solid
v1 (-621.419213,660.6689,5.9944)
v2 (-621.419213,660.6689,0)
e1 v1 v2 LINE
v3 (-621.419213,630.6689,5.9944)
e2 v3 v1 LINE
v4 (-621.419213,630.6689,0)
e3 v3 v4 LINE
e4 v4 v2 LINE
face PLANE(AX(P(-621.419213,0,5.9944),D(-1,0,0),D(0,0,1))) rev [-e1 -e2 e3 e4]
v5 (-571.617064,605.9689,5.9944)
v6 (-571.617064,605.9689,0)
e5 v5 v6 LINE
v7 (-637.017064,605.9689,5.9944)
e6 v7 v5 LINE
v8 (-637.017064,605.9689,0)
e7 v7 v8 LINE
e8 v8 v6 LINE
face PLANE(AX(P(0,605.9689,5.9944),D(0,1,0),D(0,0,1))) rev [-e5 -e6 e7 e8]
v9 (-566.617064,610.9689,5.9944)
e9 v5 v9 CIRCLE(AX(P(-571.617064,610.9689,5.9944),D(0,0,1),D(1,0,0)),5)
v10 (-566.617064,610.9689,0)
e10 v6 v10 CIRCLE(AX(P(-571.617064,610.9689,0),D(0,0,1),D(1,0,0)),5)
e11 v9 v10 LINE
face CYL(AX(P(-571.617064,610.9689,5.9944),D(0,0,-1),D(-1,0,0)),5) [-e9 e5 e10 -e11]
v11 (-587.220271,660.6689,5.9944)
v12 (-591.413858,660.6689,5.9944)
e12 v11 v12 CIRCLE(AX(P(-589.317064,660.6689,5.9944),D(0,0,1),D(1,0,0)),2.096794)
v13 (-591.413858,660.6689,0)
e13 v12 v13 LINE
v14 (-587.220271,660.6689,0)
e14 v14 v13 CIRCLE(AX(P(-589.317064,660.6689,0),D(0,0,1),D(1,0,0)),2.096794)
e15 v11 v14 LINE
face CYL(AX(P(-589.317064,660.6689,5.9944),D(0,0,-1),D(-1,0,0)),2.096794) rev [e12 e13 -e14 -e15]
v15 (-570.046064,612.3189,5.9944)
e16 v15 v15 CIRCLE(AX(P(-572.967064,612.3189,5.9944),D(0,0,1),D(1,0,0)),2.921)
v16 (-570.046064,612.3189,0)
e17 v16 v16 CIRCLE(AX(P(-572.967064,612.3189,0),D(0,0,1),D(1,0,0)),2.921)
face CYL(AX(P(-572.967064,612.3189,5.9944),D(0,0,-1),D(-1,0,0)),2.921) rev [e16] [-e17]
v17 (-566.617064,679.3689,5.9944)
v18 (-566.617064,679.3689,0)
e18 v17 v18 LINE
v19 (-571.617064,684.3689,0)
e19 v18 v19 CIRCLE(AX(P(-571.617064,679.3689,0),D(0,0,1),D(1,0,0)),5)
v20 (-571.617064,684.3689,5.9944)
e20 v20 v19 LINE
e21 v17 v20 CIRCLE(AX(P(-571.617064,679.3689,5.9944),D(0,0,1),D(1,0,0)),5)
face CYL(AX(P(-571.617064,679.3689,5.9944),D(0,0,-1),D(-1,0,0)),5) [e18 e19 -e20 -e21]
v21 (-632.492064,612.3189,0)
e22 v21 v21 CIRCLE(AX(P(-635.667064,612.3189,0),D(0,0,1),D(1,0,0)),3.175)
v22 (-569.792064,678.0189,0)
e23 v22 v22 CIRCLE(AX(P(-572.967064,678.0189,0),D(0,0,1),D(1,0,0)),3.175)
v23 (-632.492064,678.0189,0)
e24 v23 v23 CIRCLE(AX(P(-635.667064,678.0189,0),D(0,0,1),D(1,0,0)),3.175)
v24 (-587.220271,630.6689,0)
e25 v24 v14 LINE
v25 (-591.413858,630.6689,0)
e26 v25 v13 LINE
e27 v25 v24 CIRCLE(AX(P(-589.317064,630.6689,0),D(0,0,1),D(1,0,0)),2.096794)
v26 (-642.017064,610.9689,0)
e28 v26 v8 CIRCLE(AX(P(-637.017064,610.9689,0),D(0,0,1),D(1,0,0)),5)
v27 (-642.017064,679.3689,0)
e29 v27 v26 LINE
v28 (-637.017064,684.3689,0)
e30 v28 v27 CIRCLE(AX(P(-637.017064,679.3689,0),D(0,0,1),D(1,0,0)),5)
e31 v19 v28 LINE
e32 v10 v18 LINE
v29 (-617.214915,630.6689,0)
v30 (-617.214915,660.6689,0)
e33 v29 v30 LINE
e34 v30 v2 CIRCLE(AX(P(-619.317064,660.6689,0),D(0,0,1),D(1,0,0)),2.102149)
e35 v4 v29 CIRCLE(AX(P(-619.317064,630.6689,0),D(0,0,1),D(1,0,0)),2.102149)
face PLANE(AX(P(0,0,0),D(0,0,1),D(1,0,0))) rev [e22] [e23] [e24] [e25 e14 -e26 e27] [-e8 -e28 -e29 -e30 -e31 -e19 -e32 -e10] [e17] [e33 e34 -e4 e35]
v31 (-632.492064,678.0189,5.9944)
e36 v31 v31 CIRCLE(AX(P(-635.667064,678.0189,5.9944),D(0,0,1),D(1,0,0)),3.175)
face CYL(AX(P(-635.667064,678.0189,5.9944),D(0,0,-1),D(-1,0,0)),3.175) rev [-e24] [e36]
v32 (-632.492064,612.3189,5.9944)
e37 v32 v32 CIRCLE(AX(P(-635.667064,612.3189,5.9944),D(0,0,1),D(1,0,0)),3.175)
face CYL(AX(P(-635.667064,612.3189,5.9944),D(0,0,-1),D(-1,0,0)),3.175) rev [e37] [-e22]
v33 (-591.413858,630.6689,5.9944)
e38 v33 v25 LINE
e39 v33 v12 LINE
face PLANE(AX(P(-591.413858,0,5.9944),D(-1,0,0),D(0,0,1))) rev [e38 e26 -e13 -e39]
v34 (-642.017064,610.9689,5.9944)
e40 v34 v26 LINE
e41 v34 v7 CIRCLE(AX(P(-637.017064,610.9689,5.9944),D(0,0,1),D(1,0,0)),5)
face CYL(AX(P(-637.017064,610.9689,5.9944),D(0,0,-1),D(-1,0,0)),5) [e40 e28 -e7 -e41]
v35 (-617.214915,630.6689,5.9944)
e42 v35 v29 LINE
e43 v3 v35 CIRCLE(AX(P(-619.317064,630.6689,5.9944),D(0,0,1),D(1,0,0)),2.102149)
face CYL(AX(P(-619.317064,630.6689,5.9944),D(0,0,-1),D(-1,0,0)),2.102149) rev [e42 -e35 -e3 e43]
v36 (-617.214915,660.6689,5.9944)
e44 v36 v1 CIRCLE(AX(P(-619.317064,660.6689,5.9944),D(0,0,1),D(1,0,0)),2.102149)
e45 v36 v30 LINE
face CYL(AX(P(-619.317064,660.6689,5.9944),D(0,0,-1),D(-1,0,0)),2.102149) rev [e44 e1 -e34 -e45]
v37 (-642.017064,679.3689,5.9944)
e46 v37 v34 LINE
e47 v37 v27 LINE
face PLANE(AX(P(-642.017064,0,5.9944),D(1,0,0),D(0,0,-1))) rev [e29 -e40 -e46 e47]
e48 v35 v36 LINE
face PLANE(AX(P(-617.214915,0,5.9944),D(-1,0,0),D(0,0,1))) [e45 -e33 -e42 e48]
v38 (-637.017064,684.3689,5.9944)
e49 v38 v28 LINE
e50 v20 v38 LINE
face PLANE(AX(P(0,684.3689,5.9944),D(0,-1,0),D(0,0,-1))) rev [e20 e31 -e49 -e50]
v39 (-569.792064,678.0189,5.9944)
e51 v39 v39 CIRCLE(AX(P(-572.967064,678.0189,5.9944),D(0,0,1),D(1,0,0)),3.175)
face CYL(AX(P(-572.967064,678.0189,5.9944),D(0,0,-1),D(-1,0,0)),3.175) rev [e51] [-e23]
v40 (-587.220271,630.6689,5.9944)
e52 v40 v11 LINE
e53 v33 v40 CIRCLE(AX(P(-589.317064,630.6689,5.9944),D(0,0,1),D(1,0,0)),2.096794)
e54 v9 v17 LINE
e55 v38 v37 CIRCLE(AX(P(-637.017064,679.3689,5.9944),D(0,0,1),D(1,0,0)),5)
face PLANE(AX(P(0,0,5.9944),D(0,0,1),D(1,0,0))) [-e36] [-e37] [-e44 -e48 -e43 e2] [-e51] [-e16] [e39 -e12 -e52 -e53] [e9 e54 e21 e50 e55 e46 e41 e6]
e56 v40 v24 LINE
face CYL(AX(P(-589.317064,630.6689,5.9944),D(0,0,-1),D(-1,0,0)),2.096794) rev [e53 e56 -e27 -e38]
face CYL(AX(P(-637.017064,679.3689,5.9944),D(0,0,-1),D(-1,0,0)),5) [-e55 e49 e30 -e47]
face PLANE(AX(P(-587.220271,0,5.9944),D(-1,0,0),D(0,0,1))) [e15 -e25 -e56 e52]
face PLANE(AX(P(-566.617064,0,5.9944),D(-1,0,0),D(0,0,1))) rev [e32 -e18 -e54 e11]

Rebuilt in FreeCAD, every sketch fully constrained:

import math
import FreeCAD as App
import Part
import Sketcher
Q = App.Units.Quantity

doc = App.newDocument("Part")
body = doc.addObject("PartDesign::Body", "Body")

# Sketch on XY plane
sketch1 = doc.addObject("Sketcher::SketchObject", "Sketch")
body.addObject(sketch1)
sketch1.AttachmentSupport = (doc.XY_Plane, [""])
sketch1.MapMode = "FlatFace"
sketch1.addGeometry(Part.LineSegment(App.Vector(-566.6, 611, 0), App.Vector(-566.6, 679.4, 0)), False)
sketch1.addGeometry(Part.ArcOfCircle(Part.Circle(App.Vector(-571.6, 679.4, 0), App.Vector(0, 0, 1), 5), math.radians(0), math.radians(90)), False)
sketch1.addGeometry(Part.LineSegment(App.Vector(-571.6, 684.4, 0), App.Vector(-637, 684.4, 0)), False)
sketch1.addGeometry(Part.ArcOfCircle(Part.Circle(App.Vector(-637, 679.4, 0), App.Vector(0, 0, 1), 5), math.radians(90), math.radians(180)), False)
sketch1.addGeometry(Part.LineSegment(App.Vector(-642, 679.4, 0), App.Vector(-642, 611, 0)), False)
sketch1.addGeometry(Part.ArcOfCircle(Part.Circle(App.Vector(-637, 611, 0), App.Vector(0, 0, 1), 5), math.radians(180), math.radians(270)), False)
sketch1.addGeometry(Part.LineSegment(App.Vector(-637, 606, 0), App.Vector(-571.6, 606, 0)), False)
sketch1.addGeometry(Part.ArcOfCircle(Part.Circle(App.Vector(-571.6, 611, 0), App.Vector(0, 0, 1), 5), math.radians(-90), math.radians(0)), False)
sketch1.addGeometry(Part.Circle(App.Vector(-573, 678, 0), App.Vector(0, 0, 1), 3.2), False)
sketch1.addGeometry(Part.ArcOfCircle(Part.Circle(App.Vector(-589.3, 660.7, 0), App.Vector(0, 0, 1), 2.1), math.radians(0), math.radians(180)), False)
sketch1.addGeometry(Part.LineSegment(App.Vector(-587.2, 660.7, 0), App.Vector(-587.2, 630.7, 0)), False)
sketch1.addGeometry(Part.ArcOfCircle(Part.Circle(App.Vector(-589.3, 630.7, 0), App.Vector(0, 0, 1), 2.1), math.radians(180), math.radians(360)), False)
sketch1.addGeometry(Part.LineSegment(App.Vector(-591.4, 630.7, 0), App.Vector(-591.4, 660.7, 0)), False)
sketch1.addGeometry(Part.Circle(App.Vector(-635.7, 678, 0), App.Vector(0, 0, 1), 3.2), False)
sketch1.addGeometry(Part.ArcOfCircle(Part.Circle(App.Vector(-619.3, 660.7, 0), App.Vector(0, 0, 1), 2.1), math.radians(0), math.radians(180)), False)
sketch1.addGeometry(Part.LineSegment(App.Vector(-617.2, 660.7, 0), App.Vector(-617.2, 630.7, 0)), False)
sketch1.addGeometry(Part.ArcOfCircle(Part.Circle(App.Vector(-619.3, 630.7, 0), App.Vector(0, 0, 1), 2.1), math.radians(180), math.radians(360)), False)
sketch1.addGeometry(Part.LineSegment(App.Vector(-621.4, 630.7, 0), App.Vector(-621.4, 660.7, 0)), False)
sketch1.addGeometry(Part.Circle(App.Vector(-573, 612.3, 0), App.Vector(0, 0, 1), 2.9), False)
sketch1.addGeometry(Part.Circle(App.Vector(-635.7, 612.3, 0), App.Vector(0, 0, 1), 3.2), False)
sketch1.addConstraint(Sketcher.Constraint("Tangent", 0, 2, 1, 1))
sketch1.addConstraint(Sketcher.Constraint("Tangent", 1, 2, 2, 1))
sketch1.addConstraint(Sketcher.Constraint("Tangent", 2, 2, 3, 1))
sketch1.addConstraint(Sketcher.Constraint("Tangent", 3, 2, 4, 1))
sketch1.addConstraint(Sketcher.Constraint("Tangent", 4, 2, 5, 1))
sketch1.addConstraint(Sketcher.Constraint("Tangent", 5, 2, 6, 1))
sketch1.addConstraint(Sketcher.Constraint("Tangent", 6, 2, 7, 1))
sketch1.addConstraint(Sketcher.Constraint("Tangent", 7, 2, 0, 1))
sketch1.addConstraint(Sketcher.Constraint("Tangent", 9, 1, 10, 1))
sketch1.addConstraint(Sketcher.Constraint("Tangent", 10, 2, 11, 2))
sketch1.addConstraint(Sketcher.Constraint("Tangent", 11, 1, 12, 1))
sketch1.addConstraint(Sketcher.Constraint("Tangent", 12, 2, 9, 2))
sketch1.addConstraint(Sketcher.Constraint("Tangent", 14, 1, 15, 1))
sketch1.addConstraint(Sketcher.Constraint("Tangent", 15, 2, 16, 2))
sketch1.addConstraint(Sketcher.Constraint("Tangent", 16, 1, 17, 1))
sketch1.addConstraint(Sketcher.Constraint("Tangent", 17, 2, 14, 2))
sketch1.addConstraint(Sketcher.Constraint("Vertical", 0))
sketch1.addConstraint(Sketcher.Constraint("Horizontal", 2))
sketch1.addConstraint(Sketcher.Constraint("Vertical", 4))
sketch1.addConstraint(Sketcher.Constraint("Horizontal", 6))
sketch1.addConstraint(Sketcher.Constraint("Vertical", 10))
sketch1.addConstraint(Sketcher.Constraint("Vertical", 12))
sketch1.addConstraint(Sketcher.Constraint("Vertical", 15))
sketch1.addConstraint(Sketcher.Constraint("Vertical", 17))
sketch1.addConstraint(Sketcher.Constraint("Equal", 1, 3))
sketch1.addConstraint(Sketcher.Constraint("Equal", 3, 5))
sketch1.addConstraint(Sketcher.Constraint("Equal", 5, 7))
sketch1.addConstraint(Sketcher.Constraint("Equal", 8, 13))
sketch1.addConstraint(Sketcher.Constraint("Equal", 13, 19))
sketch1.addConstraint(Sketcher.Constraint("Horizontal", 8, 3, 13, 3))
sketch1.addConstraint(Sketcher.Constraint("Horizontal", 9, 3, 14, 3))
sketch1.addConstraint(Sketcher.Constraint("Horizontal", 11, 3, 16, 3))
sketch1.addConstraint(Sketcher.Constraint("Horizontal", 18, 3, 19, 3))
sketch1.addConstraint(Sketcher.Constraint("Vertical", 8, 3, 18, 3))
sketch1.addConstraint(Sketcher.Constraint("Vertical", 13, 3, 19, 3))
sketch1.addConstraint(Sketcher.Constraint("Radius", 1, Q("5 mm")))
sketch1.addConstraint(Sketcher.Constraint("Diameter", 8, Q("6.35 mm")))
sketch1.addConstraint(Sketcher.Constraint("DistanceY", 10, 2, 10, 1, Q("30 mm")))
sketch1.addConstraint(Sketcher.Constraint("Diameter", 18, Q("5.842 mm")))
sketch1.addConstraint(Sketcher.Constraint("DistanceX", 2, 2, 2, 1, Q("65.4 mm")))
sketch1.addConstraint(Sketcher.Constraint("DistanceY", 0, 1, 0, 2, Q("68.4 mm")))
sketch1.addConstraint(Sketcher.Constraint("DistanceX", 14, 3, 9, 3, Q("30 mm")))
sketch1.addConstraint(Sketcher.Constraint("DistanceX", 9, 3, 1, 3, Q("17.7 mm")))
sketch1.addConstraint(Sketcher.Constraint("DistanceY", 9, 3, 1, 3, Q("18.7 mm")))
sketch1.addConstraint(Sketcher.Constraint("DistanceX", 13, 3, 8, 3, Q("62.7 mm")))
sketch1.addConstraint(Sketcher.Constraint("Radius", 14, Q("2.102149 mm")))
sketch1.addConstraint(Sketcher.Constraint("DistanceX", 8, 3, 1, 3, Q("1.35 mm")))
sketch1.addConstraint(Sketcher.Constraint("DistanceY", 8, 3, 1, 3, Q("1.35 mm")))
sketch1.addConstraint(Sketcher.Constraint("DistanceY", 7, 3, 18, 3, Q("1.35 mm")))
sketch1.addConstraint(Sketcher.Constraint("Radius", 9, Q("2.096794 mm")))
sketch1.addConstraint(Sketcher.Constraint("DistanceY", -1, 1, 1, 3, Q("679.3689 mm")))
sketch1.addConstraint(Sketcher.Constraint("DistanceX", 9, 1, -1, 1, Q("587.220271 mm")))
pad1 = doc.addObject("PartDesign::Pad", "Pad")
body.addObject(pad1)
pad1.Profile = sketch1
pad1.Length = 5.9944

doc.recompute()
